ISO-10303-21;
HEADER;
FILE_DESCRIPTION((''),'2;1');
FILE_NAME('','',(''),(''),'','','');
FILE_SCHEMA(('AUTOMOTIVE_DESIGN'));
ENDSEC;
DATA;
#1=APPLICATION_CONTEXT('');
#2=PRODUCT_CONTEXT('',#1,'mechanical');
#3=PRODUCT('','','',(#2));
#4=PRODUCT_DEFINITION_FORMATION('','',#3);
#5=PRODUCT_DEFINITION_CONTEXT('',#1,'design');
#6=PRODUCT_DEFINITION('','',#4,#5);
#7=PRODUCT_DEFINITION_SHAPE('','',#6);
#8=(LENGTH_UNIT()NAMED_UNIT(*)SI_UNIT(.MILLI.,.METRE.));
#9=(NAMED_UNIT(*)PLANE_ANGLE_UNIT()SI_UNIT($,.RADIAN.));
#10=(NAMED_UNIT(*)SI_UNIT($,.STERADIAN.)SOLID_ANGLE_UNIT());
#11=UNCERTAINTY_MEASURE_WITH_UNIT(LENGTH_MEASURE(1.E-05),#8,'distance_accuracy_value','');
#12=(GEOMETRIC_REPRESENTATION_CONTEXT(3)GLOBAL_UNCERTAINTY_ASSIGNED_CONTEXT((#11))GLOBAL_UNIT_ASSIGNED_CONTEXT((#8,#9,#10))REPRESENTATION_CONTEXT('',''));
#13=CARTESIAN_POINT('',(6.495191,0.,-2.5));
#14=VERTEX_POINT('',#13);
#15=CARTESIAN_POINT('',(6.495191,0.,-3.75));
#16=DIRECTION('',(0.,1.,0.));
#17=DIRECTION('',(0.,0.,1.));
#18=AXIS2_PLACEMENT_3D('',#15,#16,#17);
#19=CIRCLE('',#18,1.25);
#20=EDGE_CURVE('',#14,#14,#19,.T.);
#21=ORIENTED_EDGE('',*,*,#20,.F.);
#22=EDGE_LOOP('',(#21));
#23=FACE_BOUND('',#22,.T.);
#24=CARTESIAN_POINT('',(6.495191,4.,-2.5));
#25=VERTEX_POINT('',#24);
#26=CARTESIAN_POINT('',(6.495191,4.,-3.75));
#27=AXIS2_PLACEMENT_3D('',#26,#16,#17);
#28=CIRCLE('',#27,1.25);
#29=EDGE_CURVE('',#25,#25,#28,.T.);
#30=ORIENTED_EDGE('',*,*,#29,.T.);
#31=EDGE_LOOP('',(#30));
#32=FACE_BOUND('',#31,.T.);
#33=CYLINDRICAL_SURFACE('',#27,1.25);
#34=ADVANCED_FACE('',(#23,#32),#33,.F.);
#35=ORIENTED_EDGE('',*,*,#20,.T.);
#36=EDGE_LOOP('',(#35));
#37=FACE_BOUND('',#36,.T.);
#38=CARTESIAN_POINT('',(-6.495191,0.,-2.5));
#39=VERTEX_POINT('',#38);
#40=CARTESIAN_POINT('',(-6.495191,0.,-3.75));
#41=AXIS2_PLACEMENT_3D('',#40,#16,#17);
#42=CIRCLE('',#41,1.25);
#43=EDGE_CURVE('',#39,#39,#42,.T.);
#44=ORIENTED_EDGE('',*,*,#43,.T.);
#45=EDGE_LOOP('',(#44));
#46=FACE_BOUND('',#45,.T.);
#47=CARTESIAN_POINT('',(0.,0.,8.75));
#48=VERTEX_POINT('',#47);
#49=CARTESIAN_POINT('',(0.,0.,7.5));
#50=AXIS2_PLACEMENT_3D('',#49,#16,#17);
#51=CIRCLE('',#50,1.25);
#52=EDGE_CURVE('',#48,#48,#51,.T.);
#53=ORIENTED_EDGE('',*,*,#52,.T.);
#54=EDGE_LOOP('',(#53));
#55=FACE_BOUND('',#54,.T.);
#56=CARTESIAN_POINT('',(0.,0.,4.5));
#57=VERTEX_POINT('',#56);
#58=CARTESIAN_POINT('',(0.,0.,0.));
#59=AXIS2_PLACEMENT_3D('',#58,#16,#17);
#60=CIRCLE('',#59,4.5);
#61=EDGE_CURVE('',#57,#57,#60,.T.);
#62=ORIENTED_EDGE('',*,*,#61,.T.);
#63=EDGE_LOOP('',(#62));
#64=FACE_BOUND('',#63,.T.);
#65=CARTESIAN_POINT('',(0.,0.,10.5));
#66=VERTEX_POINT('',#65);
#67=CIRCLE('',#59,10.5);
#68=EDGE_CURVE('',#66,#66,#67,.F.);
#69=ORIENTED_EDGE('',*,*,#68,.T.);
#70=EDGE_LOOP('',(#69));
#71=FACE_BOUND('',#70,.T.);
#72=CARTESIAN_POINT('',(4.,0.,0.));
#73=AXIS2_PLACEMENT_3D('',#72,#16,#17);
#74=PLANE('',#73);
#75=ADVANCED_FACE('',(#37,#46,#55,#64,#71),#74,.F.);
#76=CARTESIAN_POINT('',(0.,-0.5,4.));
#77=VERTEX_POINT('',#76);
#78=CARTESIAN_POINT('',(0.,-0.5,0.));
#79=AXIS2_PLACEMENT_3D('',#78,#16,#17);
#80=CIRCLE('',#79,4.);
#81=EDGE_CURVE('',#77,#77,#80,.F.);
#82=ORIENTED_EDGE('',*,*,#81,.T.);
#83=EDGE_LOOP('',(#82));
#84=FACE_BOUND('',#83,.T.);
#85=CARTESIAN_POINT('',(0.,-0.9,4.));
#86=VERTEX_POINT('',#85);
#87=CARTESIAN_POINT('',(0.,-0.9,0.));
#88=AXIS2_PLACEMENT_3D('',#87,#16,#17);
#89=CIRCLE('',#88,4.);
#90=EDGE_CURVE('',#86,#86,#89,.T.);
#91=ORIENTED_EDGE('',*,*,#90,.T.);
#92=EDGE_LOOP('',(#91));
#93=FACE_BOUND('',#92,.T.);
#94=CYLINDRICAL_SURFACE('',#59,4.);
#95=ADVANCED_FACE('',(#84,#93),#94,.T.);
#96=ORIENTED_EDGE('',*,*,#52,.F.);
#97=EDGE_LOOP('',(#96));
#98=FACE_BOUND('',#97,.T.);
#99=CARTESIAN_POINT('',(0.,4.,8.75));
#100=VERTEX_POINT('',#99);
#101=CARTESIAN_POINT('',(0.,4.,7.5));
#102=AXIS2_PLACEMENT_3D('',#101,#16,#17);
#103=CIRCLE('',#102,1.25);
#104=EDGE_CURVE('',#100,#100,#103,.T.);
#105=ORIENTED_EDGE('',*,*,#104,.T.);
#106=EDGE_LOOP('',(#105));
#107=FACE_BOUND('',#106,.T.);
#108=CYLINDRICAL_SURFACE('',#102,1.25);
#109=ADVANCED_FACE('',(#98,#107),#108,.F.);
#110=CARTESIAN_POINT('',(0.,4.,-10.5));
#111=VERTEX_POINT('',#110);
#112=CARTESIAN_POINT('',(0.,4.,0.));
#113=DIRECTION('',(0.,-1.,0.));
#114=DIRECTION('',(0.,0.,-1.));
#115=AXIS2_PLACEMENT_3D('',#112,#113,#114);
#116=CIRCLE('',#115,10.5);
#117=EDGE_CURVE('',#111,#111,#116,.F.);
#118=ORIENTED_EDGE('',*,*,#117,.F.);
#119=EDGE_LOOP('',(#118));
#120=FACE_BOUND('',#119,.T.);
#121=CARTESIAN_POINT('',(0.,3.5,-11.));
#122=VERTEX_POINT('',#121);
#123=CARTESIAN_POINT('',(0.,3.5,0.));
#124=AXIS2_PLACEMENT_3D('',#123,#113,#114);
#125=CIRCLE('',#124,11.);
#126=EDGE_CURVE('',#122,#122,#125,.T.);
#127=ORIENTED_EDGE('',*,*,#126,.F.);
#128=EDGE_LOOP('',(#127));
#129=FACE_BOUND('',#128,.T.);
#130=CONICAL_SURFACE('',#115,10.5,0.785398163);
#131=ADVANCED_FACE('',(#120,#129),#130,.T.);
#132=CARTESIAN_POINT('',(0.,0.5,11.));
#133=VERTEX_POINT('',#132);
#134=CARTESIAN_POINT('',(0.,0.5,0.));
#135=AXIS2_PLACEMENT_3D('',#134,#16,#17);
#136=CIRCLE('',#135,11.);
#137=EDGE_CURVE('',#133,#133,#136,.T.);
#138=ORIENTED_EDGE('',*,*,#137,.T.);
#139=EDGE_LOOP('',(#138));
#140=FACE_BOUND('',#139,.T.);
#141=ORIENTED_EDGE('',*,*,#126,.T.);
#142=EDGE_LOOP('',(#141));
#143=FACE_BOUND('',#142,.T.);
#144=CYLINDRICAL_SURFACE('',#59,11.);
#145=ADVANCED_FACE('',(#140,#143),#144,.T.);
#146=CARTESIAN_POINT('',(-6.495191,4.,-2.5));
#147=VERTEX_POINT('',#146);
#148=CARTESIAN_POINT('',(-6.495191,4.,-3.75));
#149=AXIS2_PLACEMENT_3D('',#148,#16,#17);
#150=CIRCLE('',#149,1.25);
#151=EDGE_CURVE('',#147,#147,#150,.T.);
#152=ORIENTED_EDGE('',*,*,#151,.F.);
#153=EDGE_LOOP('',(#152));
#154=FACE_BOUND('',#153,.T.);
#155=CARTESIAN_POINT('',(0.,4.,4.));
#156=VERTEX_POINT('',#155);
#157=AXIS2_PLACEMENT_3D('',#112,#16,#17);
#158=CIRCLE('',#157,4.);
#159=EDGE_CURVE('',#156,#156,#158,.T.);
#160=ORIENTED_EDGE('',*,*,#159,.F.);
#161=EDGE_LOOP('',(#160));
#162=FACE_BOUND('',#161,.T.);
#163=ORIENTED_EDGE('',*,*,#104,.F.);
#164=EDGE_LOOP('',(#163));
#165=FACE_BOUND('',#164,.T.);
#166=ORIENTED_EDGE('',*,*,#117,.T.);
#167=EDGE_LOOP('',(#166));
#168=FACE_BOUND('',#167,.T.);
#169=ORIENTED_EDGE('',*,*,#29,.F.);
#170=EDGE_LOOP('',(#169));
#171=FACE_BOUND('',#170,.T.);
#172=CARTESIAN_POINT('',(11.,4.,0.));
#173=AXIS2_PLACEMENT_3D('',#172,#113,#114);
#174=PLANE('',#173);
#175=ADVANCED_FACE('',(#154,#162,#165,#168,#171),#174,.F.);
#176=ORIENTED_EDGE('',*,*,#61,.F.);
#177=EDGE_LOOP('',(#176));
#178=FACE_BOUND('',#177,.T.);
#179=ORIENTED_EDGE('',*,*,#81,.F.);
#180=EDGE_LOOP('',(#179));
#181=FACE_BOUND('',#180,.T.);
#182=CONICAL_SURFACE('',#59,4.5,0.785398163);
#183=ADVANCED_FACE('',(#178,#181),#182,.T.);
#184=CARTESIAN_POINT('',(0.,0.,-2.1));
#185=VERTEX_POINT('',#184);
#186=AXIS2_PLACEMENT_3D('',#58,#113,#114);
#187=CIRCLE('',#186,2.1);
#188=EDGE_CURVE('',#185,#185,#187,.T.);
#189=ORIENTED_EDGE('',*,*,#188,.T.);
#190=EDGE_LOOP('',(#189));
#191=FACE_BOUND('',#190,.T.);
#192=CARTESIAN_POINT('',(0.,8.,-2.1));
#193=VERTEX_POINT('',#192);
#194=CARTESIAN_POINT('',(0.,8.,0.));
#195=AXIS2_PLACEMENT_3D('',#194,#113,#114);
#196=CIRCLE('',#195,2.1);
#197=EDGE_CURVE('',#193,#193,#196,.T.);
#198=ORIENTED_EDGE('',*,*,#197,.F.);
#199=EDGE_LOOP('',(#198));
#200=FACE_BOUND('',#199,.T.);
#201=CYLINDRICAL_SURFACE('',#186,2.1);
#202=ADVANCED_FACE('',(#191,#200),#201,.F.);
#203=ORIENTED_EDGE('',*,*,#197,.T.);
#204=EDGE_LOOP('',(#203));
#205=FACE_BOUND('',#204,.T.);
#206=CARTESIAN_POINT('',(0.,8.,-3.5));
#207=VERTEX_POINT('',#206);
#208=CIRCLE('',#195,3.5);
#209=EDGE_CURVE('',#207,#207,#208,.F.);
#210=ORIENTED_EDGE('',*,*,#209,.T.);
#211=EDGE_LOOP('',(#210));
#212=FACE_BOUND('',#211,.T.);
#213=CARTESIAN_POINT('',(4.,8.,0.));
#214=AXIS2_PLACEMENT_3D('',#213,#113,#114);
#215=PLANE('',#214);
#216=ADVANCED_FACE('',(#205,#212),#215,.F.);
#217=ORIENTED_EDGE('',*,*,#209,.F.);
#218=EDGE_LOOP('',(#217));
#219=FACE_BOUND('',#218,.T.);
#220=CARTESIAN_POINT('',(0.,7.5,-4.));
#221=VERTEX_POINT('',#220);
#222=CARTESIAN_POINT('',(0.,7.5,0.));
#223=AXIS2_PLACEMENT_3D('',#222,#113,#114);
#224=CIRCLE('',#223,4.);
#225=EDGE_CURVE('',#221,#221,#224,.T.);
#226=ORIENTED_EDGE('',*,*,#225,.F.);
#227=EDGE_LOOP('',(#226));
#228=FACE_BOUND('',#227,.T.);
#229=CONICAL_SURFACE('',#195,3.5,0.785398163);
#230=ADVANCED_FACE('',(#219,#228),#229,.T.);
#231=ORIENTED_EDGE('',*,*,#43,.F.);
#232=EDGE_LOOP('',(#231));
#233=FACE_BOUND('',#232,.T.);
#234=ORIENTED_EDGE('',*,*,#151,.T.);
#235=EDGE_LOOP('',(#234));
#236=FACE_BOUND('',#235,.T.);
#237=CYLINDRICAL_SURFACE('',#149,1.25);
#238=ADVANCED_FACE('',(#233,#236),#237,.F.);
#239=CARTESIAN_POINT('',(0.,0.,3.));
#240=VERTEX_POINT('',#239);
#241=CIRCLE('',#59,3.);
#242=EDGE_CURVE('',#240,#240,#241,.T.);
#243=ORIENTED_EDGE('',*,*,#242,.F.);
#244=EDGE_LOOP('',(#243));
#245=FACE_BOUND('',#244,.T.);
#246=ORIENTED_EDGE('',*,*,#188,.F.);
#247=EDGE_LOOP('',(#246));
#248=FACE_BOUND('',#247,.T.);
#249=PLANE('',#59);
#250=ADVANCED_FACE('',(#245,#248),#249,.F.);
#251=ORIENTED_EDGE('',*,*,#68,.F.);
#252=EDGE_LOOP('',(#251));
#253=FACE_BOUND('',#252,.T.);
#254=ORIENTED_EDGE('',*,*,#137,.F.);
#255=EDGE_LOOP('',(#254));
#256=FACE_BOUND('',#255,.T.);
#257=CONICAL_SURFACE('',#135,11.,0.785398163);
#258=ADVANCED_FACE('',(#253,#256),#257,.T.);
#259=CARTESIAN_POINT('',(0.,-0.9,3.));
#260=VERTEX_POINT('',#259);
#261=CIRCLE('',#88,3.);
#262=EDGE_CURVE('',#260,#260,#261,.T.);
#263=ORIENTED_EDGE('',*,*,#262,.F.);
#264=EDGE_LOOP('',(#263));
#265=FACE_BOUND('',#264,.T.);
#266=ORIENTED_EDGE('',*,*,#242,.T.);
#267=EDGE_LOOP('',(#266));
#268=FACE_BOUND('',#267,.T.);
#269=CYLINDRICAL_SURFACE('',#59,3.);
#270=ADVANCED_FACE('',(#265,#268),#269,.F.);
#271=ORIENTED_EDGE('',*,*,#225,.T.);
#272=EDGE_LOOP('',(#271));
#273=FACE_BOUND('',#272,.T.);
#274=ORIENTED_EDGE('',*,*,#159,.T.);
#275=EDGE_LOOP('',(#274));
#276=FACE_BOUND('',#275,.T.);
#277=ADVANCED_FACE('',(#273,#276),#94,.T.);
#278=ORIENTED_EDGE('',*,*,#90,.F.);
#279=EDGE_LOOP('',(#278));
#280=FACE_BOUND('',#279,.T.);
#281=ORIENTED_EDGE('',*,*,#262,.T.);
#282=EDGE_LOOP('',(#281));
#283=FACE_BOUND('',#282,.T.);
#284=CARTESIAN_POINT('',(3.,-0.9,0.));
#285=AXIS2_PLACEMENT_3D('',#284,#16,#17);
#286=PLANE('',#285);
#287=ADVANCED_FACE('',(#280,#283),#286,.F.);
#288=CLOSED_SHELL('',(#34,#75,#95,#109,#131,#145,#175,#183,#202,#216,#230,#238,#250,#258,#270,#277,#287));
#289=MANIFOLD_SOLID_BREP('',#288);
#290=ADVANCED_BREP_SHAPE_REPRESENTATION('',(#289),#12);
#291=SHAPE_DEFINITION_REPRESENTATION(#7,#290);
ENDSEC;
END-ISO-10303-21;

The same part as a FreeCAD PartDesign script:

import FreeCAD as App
import Part
import Sketcher


def edges_at(feature, points):
    """Names of the edges that pass closest to the given points."""
    edges = feature.Shape.Edges
    near = lambda p: min(range(len(edges)), key=lambda i: edges[i].distToShape(Part.Vertex(*p))[0])
    return sorted({f"Edge{near(p) + 1}" for p in points})

doc = App.newDocument("Part")
body = doc.addObject("PartDesign::Body", "Body")

# Sketch on XY plane
sketch1 = body.newObject("Sketcher::SketchObject", "Sketch")
sketch1.AttachmentSupport = (doc.getObject("XY_Plane"), [""])
sketch1.MapMode = "FlatFace"
sketch1.addGeometry(Part.LineSegment(App.Vector(0, 8, 0), App.Vector(0, 0, 0)), False)
sketch1.addGeometry(Part.LineSegment(App.Vector(0, 0, 0), App.Vector(3, 0, 0)), False)
sketch1.addGeometry(Part.LineSegment(App.Vector(3, 0, 0), App.Vector(3, -0.9, 0)), False)
sketch1.addGeometry(Part.LineSegment(App.Vector(3, -0.9, 0), App.Vector(4, -0.9, 0)), False)
sketch1.addGeometry(Part.LineSegment(App.Vector(4, -0.9, 0), App.Vector(4, 0, 0)), False)
sketch1.addGeometry(Part.LineSegment(App.Vector(4, 0, 0), App.Vector(11, 0, 0)), False)
sketch1.addGeometry(Part.LineSegment(App.Vector(11, 0, 0), App.Vector(11, 4, 0)), False)
sketch1.addGeometry(Part.LineSegment(App.Vector(11, 4, 0), App.Vector(4, 4, 0)), False)
sketch1.addGeometry(Part.LineSegment(App.Vector(4, 4, 0), App.Vector(4, 8, 0)), False)
sketch1.addGeometry(Part.LineSegment(App.Vector(4, 8, 0), App.Vector(0, 8, 0)), False)
sketch1.addConstraint(Sketcher.Constraint("Coincident", 0, 2, 1, 1))
sketch1.addConstraint(Sketcher.Constraint("Coincident", 1, 2, 2, 1))
sketch1.addConstraint(Sketcher.Constraint("Coincident", 2, 2, 3, 1))
sketch1.addConstraint(Sketcher.Constraint("Coincident", 3, 2, 4, 1))
sketch1.addConstraint(Sketcher.Constraint("Coincident", 4, 2, 5, 1))
sketch1.addConstraint(Sketcher.Constraint("Coincident", 5, 2, 6, 1))
sketch1.addConstraint(Sketcher.Constraint("Coincident", 6, 2, 7, 1))
sketch1.addConstraint(Sketcher.Constraint("Coincident", 7, 2, 8, 1))
sketch1.addConstraint(Sketcher.Constraint("Coincident", 8, 2, 9, 1))
sketch1.addConstraint(Sketcher.Constraint("Coincident", 9, 2, 0, 1))
sketch1.addConstraint(Sketcher.Constraint("Vertical", 0))
sketch1.addConstraint(Sketcher.Constraint("Horizontal", 1))
sketch1.addConstraint(Sketcher.Constraint("Vertical", 2))
sketch1.addConstraint(Sketcher.Constraint("Horizontal", 3))
sketch1.addConstraint(Sketcher.Constraint("Vertical", 4))
sketch1.addConstraint(Sketcher.Constraint("Horizontal", 5))
sketch1.addConstraint(Sketcher.Constraint("Vertical", 6))
sketch1.addConstraint(Sketcher.Constraint("Horizontal", 7))
sketch1.addConstraint(Sketcher.Constraint("Vertical", 8))
sketch1.addConstraint(Sketcher.Constraint("Horizontal", 9))
sketch1.addConstraint(Sketcher.Constraint("Coincident", 0, 2, -1, 1))
sketch1.addConstraint(Sketcher.Constraint("PointOnObject", 4, 2, -1))
sketch1.addConstraint(Sketcher.Constraint("Vertical", 4, 2, 7, 2))
sketch1.addConstraint(Sketcher.Constraint("Equal", 9, 6))
sketch1.addConstraint(Sketcher.Constraint("Equal", 6, 8))
sketch1.addConstraint(Sketcher.Constraint("DistanceX", 1, 1, 1, 2, 3.0))
sketch1.addConstraint(Sketcher.Constraint("DistanceX", 3, 1, 3, 2, 1.0))
sketch1.addConstraint(Sketcher.Constraint("DistanceX", 5, 1, 5, 2, 7.0))
sketch1.addConstraint(Sketcher.Constraint("DistanceY", 2, 2, 2, 1, 0.9))
revolution = body.newObject("PartDesign::Revolution", "Revolution")
revolution.Profile = sketch1
revolution.ReferenceAxis = (sketch1, ["V_Axis"])
revolution.Angle = 360

# Sketch on XZ plane
sketch2 = body.newObject("Sketcher::SketchObject", "Sketch001")
sketch2.AttachmentSupport = (doc.getObject("XZ_Plane"), [""])
sketch2.MapMode = "FlatFace"
sketch2.AttachmentOffset = App.Placement(App.Vector(0, 0, -4), App.Rotation())
sketch2.addGeometry(Part.Circle(App.Vector(-6.5, -3.8, 0), App.Vector(0, 0, 1), 1.2), False)
sketch2.addGeometry(Part.Circle(App.Vector(6.5, -3.8, 0), App.Vector(0, 0, 1), 1.2), False)
sketch2.addGeometry(Part.Circle(App.Vector(0, 7.5, 0), App.Vector(0, 0, 1), 1.2), False)
sketch2.addConstraint(Sketcher.Constraint("Equal", 0, 1))
sketch2.addConstraint(Sketcher.Constraint("Equal", 1, 2))
sketch2.addConstraint(Sketcher.Constraint("Symmetric", 0, 3, 1, 3, -2))
sketch2.addConstraint(Sketcher.Constraint("PointOnObject", 2, 3, -2))
sketch2.addConstraint(Sketcher.Constraint("Diameter", 0, 2.5))
sketch2.addConstraint(Sketcher.Constraint("DistanceY", -1, 1, 2, 3, 7.5))
sketch2.addConstraint(Sketcher.Constraint("DistanceY", 0, 3, -1, 1, 3.75))
sketch2.addConstraint(Sketcher.Constraint("DistanceX", 0, 3, -1, 1, 6.495191))
doc.recompute()
hole = body.newObject("PartDesign::Hole", "Hole")
hole.Profile = sketch2
hole.ThreadType = "None"
hole.Diameter = 2.5
hole.DepthType = "ThroughAll"
hole.Reversed = True

# Sketch on XZ plane
sketch3 = body.newObject("Sketcher::SketchObject", "Sketch002")
sketch3.AttachmentSupport = (doc.getObject("XZ_Plane"), [""])
sketch3.MapMode = "FlatFace"
sketch3.addGeometry(Part.Circle(App.Vector(0, 0, 0), App.Vector(0, 0, 1), 2.1), False)
sketch3.addConstraint(Sketcher.Constraint("Coincident", 0, 3, -1, 1))
sketch3.addConstraint(Sketcher.Constraint("Diameter", 0, 4.2))
doc.recompute()
hole2 = body.newObject("PartDesign::Hole", "Hole001")
hole2.Profile = sketch3
hole2.ThreadType = "None"
hole2.Diameter = 4.2
hole2.DepthType = "ThroughAll"
doc.recompute()

chamfer = body.newObject("PartDesign::Chamfer", "Chamfer")
chamfer.Base = (hole2, edges_at(hole2, [
    (-4, 8, 0),
    (-11, 4, 0),
    (-11, 0, 0),
    (-4, 0, 0),
]))
chamfer.Size = 0.5

doc.recompute()
